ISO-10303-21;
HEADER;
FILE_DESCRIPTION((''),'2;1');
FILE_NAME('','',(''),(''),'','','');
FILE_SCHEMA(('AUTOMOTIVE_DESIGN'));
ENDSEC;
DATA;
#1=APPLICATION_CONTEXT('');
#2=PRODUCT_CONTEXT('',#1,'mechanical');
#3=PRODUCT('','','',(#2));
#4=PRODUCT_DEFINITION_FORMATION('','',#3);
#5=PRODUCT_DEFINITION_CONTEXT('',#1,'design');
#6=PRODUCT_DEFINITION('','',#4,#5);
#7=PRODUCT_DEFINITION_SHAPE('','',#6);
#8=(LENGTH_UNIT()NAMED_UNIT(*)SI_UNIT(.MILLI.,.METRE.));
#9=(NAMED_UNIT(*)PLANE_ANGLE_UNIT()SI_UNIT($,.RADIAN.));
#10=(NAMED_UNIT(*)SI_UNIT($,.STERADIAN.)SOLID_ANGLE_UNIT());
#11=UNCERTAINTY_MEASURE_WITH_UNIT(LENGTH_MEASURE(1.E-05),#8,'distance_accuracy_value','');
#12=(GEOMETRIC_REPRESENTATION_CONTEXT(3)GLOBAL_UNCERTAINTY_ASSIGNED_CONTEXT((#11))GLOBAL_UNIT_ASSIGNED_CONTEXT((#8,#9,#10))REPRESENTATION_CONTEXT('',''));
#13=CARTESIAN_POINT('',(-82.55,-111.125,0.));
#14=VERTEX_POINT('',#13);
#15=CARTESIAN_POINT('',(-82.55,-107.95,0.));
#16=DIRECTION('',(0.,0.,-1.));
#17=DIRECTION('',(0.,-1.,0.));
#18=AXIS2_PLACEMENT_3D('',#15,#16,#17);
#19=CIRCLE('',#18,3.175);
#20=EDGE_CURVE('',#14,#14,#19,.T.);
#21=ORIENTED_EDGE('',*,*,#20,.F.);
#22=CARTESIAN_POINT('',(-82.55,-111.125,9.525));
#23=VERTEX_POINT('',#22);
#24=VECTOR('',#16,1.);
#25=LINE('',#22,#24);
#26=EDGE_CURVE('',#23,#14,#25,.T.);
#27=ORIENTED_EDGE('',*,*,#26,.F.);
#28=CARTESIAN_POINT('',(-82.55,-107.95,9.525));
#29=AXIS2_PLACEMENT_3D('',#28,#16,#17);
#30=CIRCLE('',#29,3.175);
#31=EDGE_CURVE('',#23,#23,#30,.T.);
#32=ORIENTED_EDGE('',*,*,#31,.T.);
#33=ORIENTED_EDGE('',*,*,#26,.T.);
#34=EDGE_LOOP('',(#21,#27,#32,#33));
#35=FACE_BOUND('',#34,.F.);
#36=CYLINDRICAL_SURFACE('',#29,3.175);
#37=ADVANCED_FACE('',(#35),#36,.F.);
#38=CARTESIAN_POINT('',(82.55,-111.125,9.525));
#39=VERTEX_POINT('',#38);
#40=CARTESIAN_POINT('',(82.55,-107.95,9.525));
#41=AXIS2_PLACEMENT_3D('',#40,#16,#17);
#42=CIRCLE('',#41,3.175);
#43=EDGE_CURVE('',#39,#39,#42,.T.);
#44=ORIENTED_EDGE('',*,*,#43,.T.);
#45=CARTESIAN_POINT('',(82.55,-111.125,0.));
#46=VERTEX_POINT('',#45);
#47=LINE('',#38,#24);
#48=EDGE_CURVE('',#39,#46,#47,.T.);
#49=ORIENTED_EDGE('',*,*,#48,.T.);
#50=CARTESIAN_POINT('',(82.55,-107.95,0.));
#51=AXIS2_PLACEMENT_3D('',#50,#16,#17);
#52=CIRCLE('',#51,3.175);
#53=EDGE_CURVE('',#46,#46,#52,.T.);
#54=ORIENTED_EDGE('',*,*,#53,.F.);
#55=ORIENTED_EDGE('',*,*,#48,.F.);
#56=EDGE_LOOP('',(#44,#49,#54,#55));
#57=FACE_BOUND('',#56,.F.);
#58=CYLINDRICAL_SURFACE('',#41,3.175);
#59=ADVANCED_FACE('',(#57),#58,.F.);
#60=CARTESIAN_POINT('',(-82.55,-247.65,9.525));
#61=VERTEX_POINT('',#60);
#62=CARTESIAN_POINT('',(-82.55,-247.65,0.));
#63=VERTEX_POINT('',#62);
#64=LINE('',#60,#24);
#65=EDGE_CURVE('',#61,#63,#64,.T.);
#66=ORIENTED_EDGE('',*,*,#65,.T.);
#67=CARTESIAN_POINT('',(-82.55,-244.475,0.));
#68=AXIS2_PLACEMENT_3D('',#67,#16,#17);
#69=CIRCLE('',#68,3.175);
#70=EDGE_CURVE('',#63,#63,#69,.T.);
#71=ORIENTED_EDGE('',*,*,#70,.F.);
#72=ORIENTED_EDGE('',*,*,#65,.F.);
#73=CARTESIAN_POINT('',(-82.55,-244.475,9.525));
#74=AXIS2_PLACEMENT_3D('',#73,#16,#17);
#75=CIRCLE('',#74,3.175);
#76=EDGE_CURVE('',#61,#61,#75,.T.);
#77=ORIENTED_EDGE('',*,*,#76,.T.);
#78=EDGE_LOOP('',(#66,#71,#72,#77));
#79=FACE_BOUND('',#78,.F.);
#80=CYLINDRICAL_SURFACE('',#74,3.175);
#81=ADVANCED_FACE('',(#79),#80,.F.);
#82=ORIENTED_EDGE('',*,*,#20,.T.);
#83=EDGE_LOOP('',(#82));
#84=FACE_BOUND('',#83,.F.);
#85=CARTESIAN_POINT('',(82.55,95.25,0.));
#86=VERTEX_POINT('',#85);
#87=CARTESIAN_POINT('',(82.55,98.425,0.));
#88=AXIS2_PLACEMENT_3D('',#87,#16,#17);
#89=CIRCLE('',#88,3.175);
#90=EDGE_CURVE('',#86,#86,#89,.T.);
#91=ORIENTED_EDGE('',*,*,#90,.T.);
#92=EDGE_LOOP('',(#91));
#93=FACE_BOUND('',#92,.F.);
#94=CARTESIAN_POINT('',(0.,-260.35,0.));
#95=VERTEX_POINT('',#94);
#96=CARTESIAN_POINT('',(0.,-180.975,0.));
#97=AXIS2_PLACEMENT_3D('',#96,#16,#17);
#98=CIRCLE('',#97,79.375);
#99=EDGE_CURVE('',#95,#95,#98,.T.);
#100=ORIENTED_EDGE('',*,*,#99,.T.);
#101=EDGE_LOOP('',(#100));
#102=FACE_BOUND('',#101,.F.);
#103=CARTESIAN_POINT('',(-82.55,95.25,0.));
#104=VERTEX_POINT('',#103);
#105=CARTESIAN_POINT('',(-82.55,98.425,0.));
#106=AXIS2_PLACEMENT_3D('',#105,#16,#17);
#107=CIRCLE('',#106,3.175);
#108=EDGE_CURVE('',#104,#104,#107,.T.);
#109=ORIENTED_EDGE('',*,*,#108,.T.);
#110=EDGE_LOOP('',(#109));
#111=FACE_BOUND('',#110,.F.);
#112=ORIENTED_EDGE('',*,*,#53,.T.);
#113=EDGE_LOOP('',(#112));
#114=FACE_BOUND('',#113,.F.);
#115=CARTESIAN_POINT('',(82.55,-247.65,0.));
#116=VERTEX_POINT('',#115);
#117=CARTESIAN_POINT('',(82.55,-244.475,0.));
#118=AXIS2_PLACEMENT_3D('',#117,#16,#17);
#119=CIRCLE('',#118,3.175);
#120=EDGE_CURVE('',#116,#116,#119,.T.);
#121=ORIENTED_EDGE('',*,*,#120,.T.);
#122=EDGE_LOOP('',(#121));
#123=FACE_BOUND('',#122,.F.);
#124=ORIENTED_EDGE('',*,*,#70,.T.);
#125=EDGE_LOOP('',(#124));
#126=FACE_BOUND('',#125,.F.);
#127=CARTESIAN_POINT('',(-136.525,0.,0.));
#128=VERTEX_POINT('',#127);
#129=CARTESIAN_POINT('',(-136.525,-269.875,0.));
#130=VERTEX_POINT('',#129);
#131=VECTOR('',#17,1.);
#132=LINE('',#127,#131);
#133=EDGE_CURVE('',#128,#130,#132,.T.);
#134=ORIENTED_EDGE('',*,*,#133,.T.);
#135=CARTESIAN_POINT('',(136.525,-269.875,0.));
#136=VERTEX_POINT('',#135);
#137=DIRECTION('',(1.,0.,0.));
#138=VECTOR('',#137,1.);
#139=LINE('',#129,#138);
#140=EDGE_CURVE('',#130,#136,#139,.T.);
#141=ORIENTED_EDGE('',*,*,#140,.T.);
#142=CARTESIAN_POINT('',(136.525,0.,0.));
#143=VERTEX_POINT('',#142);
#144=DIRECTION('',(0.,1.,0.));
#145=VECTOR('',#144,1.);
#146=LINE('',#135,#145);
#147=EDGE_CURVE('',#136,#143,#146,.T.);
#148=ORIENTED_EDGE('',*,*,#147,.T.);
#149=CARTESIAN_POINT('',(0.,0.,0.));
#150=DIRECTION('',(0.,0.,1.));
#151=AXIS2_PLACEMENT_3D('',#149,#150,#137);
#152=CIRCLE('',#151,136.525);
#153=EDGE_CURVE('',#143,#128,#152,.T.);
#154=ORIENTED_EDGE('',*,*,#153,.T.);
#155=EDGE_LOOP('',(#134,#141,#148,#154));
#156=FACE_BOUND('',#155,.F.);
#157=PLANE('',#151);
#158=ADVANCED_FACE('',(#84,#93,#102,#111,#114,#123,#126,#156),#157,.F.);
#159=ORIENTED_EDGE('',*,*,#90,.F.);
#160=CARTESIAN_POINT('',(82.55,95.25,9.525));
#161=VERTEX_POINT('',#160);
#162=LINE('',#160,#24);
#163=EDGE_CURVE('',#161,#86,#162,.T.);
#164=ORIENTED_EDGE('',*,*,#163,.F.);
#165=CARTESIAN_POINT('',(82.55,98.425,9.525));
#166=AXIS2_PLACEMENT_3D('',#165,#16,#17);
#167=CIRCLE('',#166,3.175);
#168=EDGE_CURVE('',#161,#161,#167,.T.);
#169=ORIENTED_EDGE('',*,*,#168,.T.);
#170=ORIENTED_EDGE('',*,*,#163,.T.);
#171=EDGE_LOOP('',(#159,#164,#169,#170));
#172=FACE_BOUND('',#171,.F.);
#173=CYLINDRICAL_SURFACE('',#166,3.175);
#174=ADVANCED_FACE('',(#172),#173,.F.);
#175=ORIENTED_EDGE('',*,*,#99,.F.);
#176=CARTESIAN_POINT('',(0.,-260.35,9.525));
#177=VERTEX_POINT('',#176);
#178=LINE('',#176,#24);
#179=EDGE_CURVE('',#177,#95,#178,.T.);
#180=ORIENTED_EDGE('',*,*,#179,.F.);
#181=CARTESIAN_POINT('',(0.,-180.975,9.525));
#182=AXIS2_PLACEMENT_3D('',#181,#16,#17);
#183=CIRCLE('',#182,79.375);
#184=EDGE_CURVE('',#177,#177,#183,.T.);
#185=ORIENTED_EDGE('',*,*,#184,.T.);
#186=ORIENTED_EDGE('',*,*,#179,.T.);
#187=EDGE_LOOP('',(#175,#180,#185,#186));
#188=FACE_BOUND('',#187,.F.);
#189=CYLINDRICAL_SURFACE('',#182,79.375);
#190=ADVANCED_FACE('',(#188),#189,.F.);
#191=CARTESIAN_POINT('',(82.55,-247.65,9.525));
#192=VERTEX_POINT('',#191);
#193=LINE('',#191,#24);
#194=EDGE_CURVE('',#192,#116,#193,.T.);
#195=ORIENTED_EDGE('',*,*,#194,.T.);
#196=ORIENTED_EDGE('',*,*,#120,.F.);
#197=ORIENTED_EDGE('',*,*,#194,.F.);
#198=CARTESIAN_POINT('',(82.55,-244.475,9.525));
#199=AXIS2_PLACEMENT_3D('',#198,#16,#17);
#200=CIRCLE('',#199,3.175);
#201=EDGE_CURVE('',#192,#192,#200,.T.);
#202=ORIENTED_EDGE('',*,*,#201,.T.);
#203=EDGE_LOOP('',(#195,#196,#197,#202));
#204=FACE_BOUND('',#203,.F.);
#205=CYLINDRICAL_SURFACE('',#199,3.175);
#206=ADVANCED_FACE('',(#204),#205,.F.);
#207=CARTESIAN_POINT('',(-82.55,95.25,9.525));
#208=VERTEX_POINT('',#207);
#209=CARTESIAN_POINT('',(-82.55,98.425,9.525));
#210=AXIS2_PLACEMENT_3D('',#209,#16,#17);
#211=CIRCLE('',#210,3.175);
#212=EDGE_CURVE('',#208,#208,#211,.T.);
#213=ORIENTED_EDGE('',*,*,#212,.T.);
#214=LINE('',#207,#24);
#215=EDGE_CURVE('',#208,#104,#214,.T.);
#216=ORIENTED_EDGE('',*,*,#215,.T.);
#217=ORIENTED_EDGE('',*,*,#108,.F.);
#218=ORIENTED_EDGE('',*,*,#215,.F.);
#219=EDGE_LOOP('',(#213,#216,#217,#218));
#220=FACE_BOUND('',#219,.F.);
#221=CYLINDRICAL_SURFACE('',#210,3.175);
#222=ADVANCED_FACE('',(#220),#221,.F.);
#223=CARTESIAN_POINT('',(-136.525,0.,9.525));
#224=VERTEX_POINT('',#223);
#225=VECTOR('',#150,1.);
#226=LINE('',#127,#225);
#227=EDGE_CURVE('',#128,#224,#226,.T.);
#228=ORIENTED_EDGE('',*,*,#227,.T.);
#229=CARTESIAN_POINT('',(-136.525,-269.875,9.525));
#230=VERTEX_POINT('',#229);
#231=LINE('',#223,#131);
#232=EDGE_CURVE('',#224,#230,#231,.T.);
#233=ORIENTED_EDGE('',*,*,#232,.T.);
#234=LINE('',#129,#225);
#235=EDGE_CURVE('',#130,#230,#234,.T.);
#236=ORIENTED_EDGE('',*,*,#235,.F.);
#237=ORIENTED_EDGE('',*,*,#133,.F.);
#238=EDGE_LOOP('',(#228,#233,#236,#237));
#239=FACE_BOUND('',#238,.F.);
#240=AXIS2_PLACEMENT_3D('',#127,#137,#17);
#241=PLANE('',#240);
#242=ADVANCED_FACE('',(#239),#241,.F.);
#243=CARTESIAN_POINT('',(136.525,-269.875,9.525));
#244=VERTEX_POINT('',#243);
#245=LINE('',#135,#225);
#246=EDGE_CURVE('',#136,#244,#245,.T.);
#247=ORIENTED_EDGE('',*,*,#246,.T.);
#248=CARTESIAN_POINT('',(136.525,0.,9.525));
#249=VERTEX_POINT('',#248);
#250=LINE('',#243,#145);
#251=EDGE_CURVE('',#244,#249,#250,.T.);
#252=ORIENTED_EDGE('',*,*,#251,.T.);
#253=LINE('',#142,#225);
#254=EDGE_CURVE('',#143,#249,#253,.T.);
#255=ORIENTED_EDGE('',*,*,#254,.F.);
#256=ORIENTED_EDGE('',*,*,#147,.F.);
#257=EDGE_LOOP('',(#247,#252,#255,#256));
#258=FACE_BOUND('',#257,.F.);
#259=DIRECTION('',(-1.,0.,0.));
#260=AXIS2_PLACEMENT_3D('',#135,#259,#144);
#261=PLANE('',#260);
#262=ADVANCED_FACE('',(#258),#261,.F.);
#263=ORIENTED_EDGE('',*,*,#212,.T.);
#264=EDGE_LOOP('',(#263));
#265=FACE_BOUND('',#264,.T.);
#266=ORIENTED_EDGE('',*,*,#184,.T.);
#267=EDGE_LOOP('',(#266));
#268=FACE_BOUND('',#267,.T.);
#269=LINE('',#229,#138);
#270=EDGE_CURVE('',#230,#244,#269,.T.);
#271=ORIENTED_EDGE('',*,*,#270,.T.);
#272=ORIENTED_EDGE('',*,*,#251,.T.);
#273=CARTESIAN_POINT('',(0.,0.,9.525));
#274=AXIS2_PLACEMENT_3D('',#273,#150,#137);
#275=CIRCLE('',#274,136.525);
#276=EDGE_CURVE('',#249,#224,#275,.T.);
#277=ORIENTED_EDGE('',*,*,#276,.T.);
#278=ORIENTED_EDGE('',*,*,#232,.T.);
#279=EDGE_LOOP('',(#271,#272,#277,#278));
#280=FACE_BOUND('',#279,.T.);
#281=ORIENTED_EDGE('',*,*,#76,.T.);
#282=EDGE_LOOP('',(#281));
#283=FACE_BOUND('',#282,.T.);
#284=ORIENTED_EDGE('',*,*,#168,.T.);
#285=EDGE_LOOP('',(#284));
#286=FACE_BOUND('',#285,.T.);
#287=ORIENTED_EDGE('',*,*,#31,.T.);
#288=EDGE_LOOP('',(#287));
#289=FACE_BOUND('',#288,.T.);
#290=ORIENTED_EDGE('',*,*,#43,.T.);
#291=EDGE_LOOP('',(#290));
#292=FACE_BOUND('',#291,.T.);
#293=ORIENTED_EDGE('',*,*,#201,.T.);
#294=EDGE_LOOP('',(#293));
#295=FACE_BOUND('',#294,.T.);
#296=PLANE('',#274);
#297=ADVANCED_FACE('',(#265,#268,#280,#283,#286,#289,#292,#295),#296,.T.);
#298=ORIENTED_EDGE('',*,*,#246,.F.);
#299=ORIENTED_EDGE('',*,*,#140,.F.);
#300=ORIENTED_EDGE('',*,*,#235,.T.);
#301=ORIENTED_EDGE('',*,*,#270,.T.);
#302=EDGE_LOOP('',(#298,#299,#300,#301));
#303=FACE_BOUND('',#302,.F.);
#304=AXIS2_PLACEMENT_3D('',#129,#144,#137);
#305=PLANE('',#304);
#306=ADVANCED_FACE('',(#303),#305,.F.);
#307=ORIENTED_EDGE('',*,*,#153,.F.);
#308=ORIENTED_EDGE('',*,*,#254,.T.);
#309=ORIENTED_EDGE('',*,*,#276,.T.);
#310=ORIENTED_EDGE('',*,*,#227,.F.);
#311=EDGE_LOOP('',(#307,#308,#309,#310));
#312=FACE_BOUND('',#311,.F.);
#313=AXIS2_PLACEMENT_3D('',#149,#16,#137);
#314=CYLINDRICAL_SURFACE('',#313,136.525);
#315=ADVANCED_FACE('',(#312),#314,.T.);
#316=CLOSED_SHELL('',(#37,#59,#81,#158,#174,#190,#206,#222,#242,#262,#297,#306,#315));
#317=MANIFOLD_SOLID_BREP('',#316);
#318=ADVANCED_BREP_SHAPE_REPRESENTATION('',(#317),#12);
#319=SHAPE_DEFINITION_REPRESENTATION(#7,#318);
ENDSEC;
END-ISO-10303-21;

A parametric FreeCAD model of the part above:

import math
import FreeCAD as App
import Part
import Sketcher
from FreeCAD import Vector
Q = App.Units.Quantity

doc = App.newDocument("Part")
body = doc.addObject("PartDesign::Body", "Body")

sketch1 = body.newObject("Sketcher::SketchObject", "Sketch")
sketch1.AttachmentSupport = (doc.getObject("XY_Plane"), [""])
sketch1.MapMode = "FlatFace"
sketch1.addGeometry([
    Part.ArcOfCircle(Part.Circle(Vector(0, 0, 0), Vector(0, 0, 1), 137), math.radians(0), math.radians(180)),
    Part.LineSegment(Vector(-137, 0, 0), Vector(-137, -270, 0)),
    Part.LineSegment(Vector(-137, -270, 0), Vector(137, -270, 0)),
    Part.LineSegment(Vector(137, -270, 0), Vector(137, 0, 0)),
], False)
sketch1.addConstraint([
    Sketcher.Constraint("Tangent", 0, 2, 1, 1),
    Sketcher.Constraint("Coincident", 1, 2, 2, 1),
    Sketcher.Constraint("Coincident", 2, 2, 3, 1),
    Sketcher.Constraint("Tangent", 3, 2, 0, 1),
    Sketcher.Constraint("Vertical", 1),
    Sketcher.Constraint("Horizontal", 2),
    Sketcher.Constraint("Vertical", 3),
    Sketcher.Constraint("Coincident", 0, 3, -1, 1),
    Sketcher.Constraint("Radius", 0, Q("5.375 in")),
    Sketcher.Constraint("DistanceY", 1, 2, 1, 1, Q("10.625 in")),
])
pad1 = body.newObject("PartDesign::Pad", "Pad")
pad1.Profile = sketch1
pad1.Length = Q("0.375 in")

sketch2 = body.newObject("Sketcher::SketchObject", "Sketch001")
sketch2.AttachmentSupport = (doc.getObject("XY_Plane"), [""])
sketch2.MapMode = "FlatFace"
sketch2.AttachmentOffset = App.Placement(Vector(0, 0, 0.375 * 25.4), App.Rotation())
sketch2.addGeometry(Part.Circle(Vector(-82.5, -244.5, 0), Vector(0, 0, 1), 3.2), False)
sketch2.addConstraint([
    Sketcher.Constraint("Diameter", 0, Q("0.25 in")),
    Sketcher.Constraint("DistanceX", 0, 3, -1, 1, Q("3.25 in")),
    Sketcher.Constraint("DistanceY", 0, 3, -1, 1, Q("9.625 in")),
])
doc.recompute()
hole = body.newObject("PartDesign::Hole", "Hole")
hole.Profile = sketch2
hole.ThreadType = "None"
hole.Diameter = Q("0.25 in")
hole.DepthType = "Dimension"
hole.Depth = Q("1 in")
hole.DrillPoint = "Angled"
hole.DrillPointAngle = 118

sketch3 = body.newObject("Sketcher::SketchObject", "Sketch002")
sketch3.AttachmentSupport = (doc.getObject("XY_Plane"), [""])
sketch3.MapMode = "FlatFace"
sketch3.AttachmentOffset = App.Placement(Vector(0, 0, 0.375 * 25.4), App.Rotation())
sketch3.addGeometry(Part.Circle(Vector(82.5, -244.5, 0), Vector(0, 0, 1), 3.2), False)
sketch3.addConstraint([
    Sketcher.Constraint("Diameter", 0, Q("0.25 in")),
    Sketcher.Constraint("DistanceX", -1, 1, 0, 3, Q("3.25 in")),
    Sketcher.Constraint("DistanceY", 0, 3, -1, 1, Q("9.625 in")),
])
doc.recompute()
hole2 = body.newObject("PartDesign::Hole", "Hole001")
hole2.Profile = sketch3
hole2.ThreadType = "None"
hole2.Diameter = Q("0.25 in")
hole2.DepthType = "Dimension"
hole2.Depth = Q("1 in")
hole2.DrillPoint = "Angled"
hole2.DrillPointAngle = 118

sketch4 = body.newObject("Sketcher::SketchObject", "Sketch003")
sketch4.AttachmentSupport = (doc.getObject("XY_Plane"), [""])
sketch4.MapMode = "FlatFace"
sketch4.AttachmentOffset = App.Placement(Vector(0, 0, 0.375 * 25.4), App.Rotation())
sketch4.addGeometry(Part.Circle(Vector(-82.5, -108, 0), Vector(0, 0, 1), 3.2), False)
sketch4.addConstraint([
    Sketcher.Constraint("Diameter", 0, Q("0.25 in")),
    Sketcher.Constraint("DistanceX", 0, 3, -1, 1, Q("3.25 in")),
    Sketcher.Constraint("DistanceY", 0, 3, -1, 1, Q("4.25 in")),
])
doc.recompute()
hole3 = body.newObject("PartDesign::Hole", "Hole002")
hole3.Profile = sketch4
hole3.ThreadType = "None"
hole3.Diameter = Q("0.25 in")
hole3.DepthType = "Dimension"
hole3.Depth = Q("1 in")
hole3.DrillPoint = "Angled"
hole3.DrillPointAngle = 118

sketch5 = body.newObject("Sketcher::SketchObject", "Sketch004")
sketch5.AttachmentSupport = (doc.getObject("XY_Plane"), [""])
sketch5.MapMode = "FlatFace"
sketch5.AttachmentOffset = App.Placement(Vector(0, 0, 0.375 * 25.4), App.Rotation())
sketch5.addGeometry(Part.Circle(Vector(82.5, -108, 0), Vector(0, 0, 1), 3.2), False)
sketch5.addConstraint([
    Sketcher.Constraint("Diameter", 0, Q("0.25 in")),
    Sketcher.Constraint("DistanceX", -1, 1, 0, 3, Q("3.25 in")),
    Sketcher.Constraint("DistanceY", 0, 3, -1, 1, Q("4.25 in")),
])
doc.recompute()
hole4 = body.newObject("PartDesign::Hole", "Hole003")
hole4.Profile = sketch5
hole4.ThreadType = "None"
hole4.Diameter = Q("0.25 in")
hole4.DepthType = "Dimension"
hole4.Depth = Q("1 in")
hole4.DrillPoint = "Angled"
hole4.DrillPointAngle = 118

sketch6 = body.newObject("Sketcher::SketchObject", "Sketch005")
sketch6.AttachmentSupport = (doc.getObject("XY_Plane"), [""])
sketch6.MapMode = "FlatFace"
sketch6.AttachmentOffset = App.Placement(Vector(0, 0, 0.375 * 25.4), App.Rotation())
sketch6.addGeometry(Part.Circle(Vector(-82.5, 98.4, 0), Vector(0, 0, 1), 3.2), False)
sketch6.addConstraint([
    Sketcher.Constraint("Diameter", 0, Q("0.25 in")),
    Sketcher.Constraint("DistanceX", 0, 3, -1, 1, Q("3.25 in")),
    Sketcher.Constraint("DistanceY", -1, 1, 0, 3, Q("3.875 in")),
])
doc.recompute()
hole5 = body.newObject("PartDesign::Hole", "Hole004")
hole5.Profile = sketch6
hole5.ThreadType = "None"
hole5.Diameter = Q("0.25 in")
hole5.DepthType = "Dimension"
hole5.Depth = Q("1 in")
hole5.DrillPoint = "Angled"
hole5.DrillPointAngle = 118

sketch7 = body.newObject("Sketcher::SketchObject", "Sketch006")
sketch7.AttachmentSupport = (doc.getObject("XY_Plane"), [""])
sketch7.MapMode = "FlatFace"
sketch7.AttachmentOffset = App.Placement(Vector(0, 0, 0.375 * 25.4), App.Rotation())
sketch7.addGeometry(Part.Circle(Vector(82.5, 98.4, 0), Vector(0, 0, 1), 3.2), False)
sketch7.addConstraint([
    Sketcher.Constraint("Diameter", 0, Q("0.25 in")),
    Sketcher.Constraint("DistanceX", -1, 1, 0, 3, Q("3.25 in")),
    Sketcher.Constraint("DistanceY", -1, 1, 0, 3, Q("3.875 in")),
])
doc.recompute()
hole6 = body.newObject("PartDesign::Hole", "Hole005")
hole6.Profile = sketch7
hole6.ThreadType = "None"
hole6.Diameter = Q("0.25 in")
hole6.DepthType = "Dimension"
hole6.Depth = Q("1 in")
hole6.DrillPoint = "Angled"
hole6.DrillPointAngle = 118

sketch8 = body.newObject("Sketcher::SketchObject", "Sketch007")
sketch8.AttachmentSupport = (doc.getObject("XY_Plane"), [""])
sketch8.MapMode = "FlatFace"
sketch8.AttachmentOffset = App.Placement(Vector(0, 0, 0.375 * 25.4), App.Rotation())
sketch8.addGeometry(Part.Circle(Vector(0, -181, 0), Vector(0, 0, 1), 79), False)
sketch8.addConstraint([
    Sketcher.Constraint("PointOnObject", 0, 3, -2),
    Sketcher.Constraint("Diameter", 0, Q("6.25 in")),
    Sketcher.Constraint("DistanceY", 0, 3, -1, 1, Q("7.125 in")),
])
doc.recompute()
hole7 = body.newObject("PartDesign::Hole", "Hole006")
hole7.Profile = sketch8
hole7.ThreadType = "None"
hole7.Diameter = Q("6.25 in")
hole7.DepthType = "Dimension"
hole7.Depth = Q("1 in")
hole7.DrillPoint = "Angled"
hole7.DrillPointAngle = 118

doc.recompute()
